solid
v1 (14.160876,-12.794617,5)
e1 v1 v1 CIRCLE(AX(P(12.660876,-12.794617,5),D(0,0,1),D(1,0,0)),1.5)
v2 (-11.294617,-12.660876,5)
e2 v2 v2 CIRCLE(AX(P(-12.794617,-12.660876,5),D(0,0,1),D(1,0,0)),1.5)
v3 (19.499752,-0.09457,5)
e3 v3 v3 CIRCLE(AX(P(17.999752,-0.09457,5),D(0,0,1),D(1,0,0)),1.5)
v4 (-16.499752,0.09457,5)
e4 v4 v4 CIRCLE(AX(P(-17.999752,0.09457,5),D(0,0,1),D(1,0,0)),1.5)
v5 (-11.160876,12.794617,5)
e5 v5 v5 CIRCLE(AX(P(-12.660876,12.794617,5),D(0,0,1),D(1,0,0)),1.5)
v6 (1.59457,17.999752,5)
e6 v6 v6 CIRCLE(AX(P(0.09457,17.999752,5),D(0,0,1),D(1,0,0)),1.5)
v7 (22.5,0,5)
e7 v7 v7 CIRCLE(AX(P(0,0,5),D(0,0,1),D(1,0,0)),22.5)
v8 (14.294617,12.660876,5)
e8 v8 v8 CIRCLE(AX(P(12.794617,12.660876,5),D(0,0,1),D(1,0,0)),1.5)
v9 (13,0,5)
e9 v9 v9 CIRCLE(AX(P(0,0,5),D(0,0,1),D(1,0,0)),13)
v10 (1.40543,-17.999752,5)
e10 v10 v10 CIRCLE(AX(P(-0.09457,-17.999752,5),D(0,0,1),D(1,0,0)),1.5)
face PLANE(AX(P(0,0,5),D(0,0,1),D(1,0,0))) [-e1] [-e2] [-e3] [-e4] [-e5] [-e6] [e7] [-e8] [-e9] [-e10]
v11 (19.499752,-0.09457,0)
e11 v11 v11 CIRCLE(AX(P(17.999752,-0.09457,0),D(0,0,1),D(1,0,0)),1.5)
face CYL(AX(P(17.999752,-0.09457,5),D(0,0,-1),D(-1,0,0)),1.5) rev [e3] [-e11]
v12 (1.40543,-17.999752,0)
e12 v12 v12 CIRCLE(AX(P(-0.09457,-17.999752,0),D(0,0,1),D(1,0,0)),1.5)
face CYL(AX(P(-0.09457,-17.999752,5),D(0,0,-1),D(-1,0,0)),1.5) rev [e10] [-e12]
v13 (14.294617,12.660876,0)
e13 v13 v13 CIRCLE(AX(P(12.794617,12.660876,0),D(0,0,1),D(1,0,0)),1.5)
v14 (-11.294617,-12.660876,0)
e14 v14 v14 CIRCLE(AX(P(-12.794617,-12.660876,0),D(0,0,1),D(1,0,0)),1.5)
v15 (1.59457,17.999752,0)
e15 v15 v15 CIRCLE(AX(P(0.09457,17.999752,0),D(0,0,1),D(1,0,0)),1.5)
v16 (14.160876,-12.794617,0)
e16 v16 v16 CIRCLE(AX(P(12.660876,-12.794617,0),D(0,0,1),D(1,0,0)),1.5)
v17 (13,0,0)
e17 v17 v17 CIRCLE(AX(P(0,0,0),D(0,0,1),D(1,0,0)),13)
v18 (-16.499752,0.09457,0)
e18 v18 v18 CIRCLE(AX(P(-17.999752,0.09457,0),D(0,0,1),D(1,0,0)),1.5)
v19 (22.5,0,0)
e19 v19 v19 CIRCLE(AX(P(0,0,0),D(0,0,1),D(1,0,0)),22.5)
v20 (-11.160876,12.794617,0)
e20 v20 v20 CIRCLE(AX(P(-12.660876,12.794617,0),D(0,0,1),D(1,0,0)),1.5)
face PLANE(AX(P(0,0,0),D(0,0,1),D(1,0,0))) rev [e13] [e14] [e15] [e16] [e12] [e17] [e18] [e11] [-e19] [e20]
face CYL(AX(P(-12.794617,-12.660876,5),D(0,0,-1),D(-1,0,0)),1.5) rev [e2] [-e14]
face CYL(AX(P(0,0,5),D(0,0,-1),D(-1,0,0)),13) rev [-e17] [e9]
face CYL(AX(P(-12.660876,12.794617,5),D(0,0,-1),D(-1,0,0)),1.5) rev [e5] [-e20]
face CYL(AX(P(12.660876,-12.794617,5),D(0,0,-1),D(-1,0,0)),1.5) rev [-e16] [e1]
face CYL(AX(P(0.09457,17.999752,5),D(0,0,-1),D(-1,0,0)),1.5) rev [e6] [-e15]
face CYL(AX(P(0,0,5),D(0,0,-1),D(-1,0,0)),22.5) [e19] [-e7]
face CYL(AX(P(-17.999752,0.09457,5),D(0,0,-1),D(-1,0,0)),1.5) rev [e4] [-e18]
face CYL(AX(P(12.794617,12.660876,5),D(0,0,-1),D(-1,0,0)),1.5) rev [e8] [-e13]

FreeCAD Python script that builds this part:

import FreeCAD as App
import Part
import Sketcher
Q = App.Units.Quantity

doc = App.newDocument("Part")
body = doc.addObject("PartDesign::Body", "Body")

# Sketch on XY plane
sketch1 = body.newObject("Sketcher::SketchObject", "Sketch")
sketch1.AttachmentSupport = (doc.getObject("XY_Plane"), [""])
sketch1.MapMode = "FlatFace"
sketch1.addGeometry([
    Part.Circle(App.Vector(0, 0, 0), App.Vector(0, 0, 1), 22.5),  # 0
    Part.Circle(App.Vector(-12.8, -12.7, 0), App.Vector(0, 0, 1), 1.5),  # 1
    Part.Circle(App.Vector(-0.1, -18, 0), App.Vector(0, 0, 1), 1.5),  # 2
    Part.Circle(App.Vector(12.7, -12.8, 0), App.Vector(0, 0, 1), 1.5),  # 3
    Part.Circle(App.Vector(18, -0.1, 0), App.Vector(0, 0, 1), 1.5),  # 4
    Part.Circle(App.Vector(-18, 0.1, 0), App.Vector(0, 0, 1), 1.5),  # 5
    Part.Circle(App.Vector(-12.7, 12.8, 0), App.Vector(0, 0, 1), 1.5),  # 6
    Part.Circle(App.Vector(0, 0, 0), App.Vector(0, 0, 1), 13),  # 7
    Part.Circle(App.Vector(0.1, 18, 0), App.Vector(0, 0, 1), 1.5),  # 8
    Part.Circle(App.Vector(12.8, 12.7, 0), App.Vector(0, 0, 1), 1.5),  # 9
], False)
sketch1.addConstraint([
    Sketcher.Constraint("Coincident", 0, 3, -1, 1),
    Sketcher.Constraint("Coincident", 7, 3, -1, 1),
    Sketcher.Constraint("Equal", 1, 2),
    Sketcher.Constraint("Equal", 2, 3),
    Sketcher.Constraint("Equal", 3, 4),
    Sketcher.Constraint("Equal", 4, 5),
    Sketcher.Constraint("Equal", 5, 6),
    Sketcher.Constraint("Equal", 6, 8),
    Sketcher.Constraint("Equal", 8, 9),
    Sketcher.Constraint("Symmetric", 4, 3, 5, 3, -1, 1),
    Sketcher.Constraint("Symmetric", 3, 3, 6, 3, -1, 1),
    Sketcher.Constraint("Symmetric", 2, 3, 8, 3, -1, 1),
    Sketcher.Constraint("Symmetric", 1, 3, 9, 3, -1, 1),
    Sketcher.Constraint("Diameter", 0, Q("45 mm")),
    Sketcher.Constraint("Diameter", 1, Q("3 mm")),
    Sketcher.Constraint("Diameter", 7, Q("26 mm")),
    Sketcher.Constraint("DistanceX", 2, 3, -1, 1, Q("0.09457 mm")),
    Sketcher.Constraint("DistanceY", 2, 3, -1, 1, Q("17.999752 mm")),
    Sketcher.Constraint("DistanceX", -1, 1, 4, 3, Q("17.999752 mm")),
    Sketcher.Constraint("DistanceY", 4, 3, -1, 1, Q("0.09457 mm")),
    Sketcher.Constraint("DistanceY", 3, 3, 1, 3, Q("0.133742 mm")),
    Sketcher.Constraint("DistanceX", 1, 3, 4, 3, Q("30.794369 mm")),
    Sketcher.Constraint("DistanceX", 1, 3, 6, 3, Q("0.133742 mm")),
    Sketcher.Constraint("DistanceY", 2, 3, 6, 3, Q("30.794369 mm")),
])
pad1 = body.newObject("PartDesign::Pad", "Pad")
pad1.Profile = sketch1
pad1.Length = 5

doc.recompute()
